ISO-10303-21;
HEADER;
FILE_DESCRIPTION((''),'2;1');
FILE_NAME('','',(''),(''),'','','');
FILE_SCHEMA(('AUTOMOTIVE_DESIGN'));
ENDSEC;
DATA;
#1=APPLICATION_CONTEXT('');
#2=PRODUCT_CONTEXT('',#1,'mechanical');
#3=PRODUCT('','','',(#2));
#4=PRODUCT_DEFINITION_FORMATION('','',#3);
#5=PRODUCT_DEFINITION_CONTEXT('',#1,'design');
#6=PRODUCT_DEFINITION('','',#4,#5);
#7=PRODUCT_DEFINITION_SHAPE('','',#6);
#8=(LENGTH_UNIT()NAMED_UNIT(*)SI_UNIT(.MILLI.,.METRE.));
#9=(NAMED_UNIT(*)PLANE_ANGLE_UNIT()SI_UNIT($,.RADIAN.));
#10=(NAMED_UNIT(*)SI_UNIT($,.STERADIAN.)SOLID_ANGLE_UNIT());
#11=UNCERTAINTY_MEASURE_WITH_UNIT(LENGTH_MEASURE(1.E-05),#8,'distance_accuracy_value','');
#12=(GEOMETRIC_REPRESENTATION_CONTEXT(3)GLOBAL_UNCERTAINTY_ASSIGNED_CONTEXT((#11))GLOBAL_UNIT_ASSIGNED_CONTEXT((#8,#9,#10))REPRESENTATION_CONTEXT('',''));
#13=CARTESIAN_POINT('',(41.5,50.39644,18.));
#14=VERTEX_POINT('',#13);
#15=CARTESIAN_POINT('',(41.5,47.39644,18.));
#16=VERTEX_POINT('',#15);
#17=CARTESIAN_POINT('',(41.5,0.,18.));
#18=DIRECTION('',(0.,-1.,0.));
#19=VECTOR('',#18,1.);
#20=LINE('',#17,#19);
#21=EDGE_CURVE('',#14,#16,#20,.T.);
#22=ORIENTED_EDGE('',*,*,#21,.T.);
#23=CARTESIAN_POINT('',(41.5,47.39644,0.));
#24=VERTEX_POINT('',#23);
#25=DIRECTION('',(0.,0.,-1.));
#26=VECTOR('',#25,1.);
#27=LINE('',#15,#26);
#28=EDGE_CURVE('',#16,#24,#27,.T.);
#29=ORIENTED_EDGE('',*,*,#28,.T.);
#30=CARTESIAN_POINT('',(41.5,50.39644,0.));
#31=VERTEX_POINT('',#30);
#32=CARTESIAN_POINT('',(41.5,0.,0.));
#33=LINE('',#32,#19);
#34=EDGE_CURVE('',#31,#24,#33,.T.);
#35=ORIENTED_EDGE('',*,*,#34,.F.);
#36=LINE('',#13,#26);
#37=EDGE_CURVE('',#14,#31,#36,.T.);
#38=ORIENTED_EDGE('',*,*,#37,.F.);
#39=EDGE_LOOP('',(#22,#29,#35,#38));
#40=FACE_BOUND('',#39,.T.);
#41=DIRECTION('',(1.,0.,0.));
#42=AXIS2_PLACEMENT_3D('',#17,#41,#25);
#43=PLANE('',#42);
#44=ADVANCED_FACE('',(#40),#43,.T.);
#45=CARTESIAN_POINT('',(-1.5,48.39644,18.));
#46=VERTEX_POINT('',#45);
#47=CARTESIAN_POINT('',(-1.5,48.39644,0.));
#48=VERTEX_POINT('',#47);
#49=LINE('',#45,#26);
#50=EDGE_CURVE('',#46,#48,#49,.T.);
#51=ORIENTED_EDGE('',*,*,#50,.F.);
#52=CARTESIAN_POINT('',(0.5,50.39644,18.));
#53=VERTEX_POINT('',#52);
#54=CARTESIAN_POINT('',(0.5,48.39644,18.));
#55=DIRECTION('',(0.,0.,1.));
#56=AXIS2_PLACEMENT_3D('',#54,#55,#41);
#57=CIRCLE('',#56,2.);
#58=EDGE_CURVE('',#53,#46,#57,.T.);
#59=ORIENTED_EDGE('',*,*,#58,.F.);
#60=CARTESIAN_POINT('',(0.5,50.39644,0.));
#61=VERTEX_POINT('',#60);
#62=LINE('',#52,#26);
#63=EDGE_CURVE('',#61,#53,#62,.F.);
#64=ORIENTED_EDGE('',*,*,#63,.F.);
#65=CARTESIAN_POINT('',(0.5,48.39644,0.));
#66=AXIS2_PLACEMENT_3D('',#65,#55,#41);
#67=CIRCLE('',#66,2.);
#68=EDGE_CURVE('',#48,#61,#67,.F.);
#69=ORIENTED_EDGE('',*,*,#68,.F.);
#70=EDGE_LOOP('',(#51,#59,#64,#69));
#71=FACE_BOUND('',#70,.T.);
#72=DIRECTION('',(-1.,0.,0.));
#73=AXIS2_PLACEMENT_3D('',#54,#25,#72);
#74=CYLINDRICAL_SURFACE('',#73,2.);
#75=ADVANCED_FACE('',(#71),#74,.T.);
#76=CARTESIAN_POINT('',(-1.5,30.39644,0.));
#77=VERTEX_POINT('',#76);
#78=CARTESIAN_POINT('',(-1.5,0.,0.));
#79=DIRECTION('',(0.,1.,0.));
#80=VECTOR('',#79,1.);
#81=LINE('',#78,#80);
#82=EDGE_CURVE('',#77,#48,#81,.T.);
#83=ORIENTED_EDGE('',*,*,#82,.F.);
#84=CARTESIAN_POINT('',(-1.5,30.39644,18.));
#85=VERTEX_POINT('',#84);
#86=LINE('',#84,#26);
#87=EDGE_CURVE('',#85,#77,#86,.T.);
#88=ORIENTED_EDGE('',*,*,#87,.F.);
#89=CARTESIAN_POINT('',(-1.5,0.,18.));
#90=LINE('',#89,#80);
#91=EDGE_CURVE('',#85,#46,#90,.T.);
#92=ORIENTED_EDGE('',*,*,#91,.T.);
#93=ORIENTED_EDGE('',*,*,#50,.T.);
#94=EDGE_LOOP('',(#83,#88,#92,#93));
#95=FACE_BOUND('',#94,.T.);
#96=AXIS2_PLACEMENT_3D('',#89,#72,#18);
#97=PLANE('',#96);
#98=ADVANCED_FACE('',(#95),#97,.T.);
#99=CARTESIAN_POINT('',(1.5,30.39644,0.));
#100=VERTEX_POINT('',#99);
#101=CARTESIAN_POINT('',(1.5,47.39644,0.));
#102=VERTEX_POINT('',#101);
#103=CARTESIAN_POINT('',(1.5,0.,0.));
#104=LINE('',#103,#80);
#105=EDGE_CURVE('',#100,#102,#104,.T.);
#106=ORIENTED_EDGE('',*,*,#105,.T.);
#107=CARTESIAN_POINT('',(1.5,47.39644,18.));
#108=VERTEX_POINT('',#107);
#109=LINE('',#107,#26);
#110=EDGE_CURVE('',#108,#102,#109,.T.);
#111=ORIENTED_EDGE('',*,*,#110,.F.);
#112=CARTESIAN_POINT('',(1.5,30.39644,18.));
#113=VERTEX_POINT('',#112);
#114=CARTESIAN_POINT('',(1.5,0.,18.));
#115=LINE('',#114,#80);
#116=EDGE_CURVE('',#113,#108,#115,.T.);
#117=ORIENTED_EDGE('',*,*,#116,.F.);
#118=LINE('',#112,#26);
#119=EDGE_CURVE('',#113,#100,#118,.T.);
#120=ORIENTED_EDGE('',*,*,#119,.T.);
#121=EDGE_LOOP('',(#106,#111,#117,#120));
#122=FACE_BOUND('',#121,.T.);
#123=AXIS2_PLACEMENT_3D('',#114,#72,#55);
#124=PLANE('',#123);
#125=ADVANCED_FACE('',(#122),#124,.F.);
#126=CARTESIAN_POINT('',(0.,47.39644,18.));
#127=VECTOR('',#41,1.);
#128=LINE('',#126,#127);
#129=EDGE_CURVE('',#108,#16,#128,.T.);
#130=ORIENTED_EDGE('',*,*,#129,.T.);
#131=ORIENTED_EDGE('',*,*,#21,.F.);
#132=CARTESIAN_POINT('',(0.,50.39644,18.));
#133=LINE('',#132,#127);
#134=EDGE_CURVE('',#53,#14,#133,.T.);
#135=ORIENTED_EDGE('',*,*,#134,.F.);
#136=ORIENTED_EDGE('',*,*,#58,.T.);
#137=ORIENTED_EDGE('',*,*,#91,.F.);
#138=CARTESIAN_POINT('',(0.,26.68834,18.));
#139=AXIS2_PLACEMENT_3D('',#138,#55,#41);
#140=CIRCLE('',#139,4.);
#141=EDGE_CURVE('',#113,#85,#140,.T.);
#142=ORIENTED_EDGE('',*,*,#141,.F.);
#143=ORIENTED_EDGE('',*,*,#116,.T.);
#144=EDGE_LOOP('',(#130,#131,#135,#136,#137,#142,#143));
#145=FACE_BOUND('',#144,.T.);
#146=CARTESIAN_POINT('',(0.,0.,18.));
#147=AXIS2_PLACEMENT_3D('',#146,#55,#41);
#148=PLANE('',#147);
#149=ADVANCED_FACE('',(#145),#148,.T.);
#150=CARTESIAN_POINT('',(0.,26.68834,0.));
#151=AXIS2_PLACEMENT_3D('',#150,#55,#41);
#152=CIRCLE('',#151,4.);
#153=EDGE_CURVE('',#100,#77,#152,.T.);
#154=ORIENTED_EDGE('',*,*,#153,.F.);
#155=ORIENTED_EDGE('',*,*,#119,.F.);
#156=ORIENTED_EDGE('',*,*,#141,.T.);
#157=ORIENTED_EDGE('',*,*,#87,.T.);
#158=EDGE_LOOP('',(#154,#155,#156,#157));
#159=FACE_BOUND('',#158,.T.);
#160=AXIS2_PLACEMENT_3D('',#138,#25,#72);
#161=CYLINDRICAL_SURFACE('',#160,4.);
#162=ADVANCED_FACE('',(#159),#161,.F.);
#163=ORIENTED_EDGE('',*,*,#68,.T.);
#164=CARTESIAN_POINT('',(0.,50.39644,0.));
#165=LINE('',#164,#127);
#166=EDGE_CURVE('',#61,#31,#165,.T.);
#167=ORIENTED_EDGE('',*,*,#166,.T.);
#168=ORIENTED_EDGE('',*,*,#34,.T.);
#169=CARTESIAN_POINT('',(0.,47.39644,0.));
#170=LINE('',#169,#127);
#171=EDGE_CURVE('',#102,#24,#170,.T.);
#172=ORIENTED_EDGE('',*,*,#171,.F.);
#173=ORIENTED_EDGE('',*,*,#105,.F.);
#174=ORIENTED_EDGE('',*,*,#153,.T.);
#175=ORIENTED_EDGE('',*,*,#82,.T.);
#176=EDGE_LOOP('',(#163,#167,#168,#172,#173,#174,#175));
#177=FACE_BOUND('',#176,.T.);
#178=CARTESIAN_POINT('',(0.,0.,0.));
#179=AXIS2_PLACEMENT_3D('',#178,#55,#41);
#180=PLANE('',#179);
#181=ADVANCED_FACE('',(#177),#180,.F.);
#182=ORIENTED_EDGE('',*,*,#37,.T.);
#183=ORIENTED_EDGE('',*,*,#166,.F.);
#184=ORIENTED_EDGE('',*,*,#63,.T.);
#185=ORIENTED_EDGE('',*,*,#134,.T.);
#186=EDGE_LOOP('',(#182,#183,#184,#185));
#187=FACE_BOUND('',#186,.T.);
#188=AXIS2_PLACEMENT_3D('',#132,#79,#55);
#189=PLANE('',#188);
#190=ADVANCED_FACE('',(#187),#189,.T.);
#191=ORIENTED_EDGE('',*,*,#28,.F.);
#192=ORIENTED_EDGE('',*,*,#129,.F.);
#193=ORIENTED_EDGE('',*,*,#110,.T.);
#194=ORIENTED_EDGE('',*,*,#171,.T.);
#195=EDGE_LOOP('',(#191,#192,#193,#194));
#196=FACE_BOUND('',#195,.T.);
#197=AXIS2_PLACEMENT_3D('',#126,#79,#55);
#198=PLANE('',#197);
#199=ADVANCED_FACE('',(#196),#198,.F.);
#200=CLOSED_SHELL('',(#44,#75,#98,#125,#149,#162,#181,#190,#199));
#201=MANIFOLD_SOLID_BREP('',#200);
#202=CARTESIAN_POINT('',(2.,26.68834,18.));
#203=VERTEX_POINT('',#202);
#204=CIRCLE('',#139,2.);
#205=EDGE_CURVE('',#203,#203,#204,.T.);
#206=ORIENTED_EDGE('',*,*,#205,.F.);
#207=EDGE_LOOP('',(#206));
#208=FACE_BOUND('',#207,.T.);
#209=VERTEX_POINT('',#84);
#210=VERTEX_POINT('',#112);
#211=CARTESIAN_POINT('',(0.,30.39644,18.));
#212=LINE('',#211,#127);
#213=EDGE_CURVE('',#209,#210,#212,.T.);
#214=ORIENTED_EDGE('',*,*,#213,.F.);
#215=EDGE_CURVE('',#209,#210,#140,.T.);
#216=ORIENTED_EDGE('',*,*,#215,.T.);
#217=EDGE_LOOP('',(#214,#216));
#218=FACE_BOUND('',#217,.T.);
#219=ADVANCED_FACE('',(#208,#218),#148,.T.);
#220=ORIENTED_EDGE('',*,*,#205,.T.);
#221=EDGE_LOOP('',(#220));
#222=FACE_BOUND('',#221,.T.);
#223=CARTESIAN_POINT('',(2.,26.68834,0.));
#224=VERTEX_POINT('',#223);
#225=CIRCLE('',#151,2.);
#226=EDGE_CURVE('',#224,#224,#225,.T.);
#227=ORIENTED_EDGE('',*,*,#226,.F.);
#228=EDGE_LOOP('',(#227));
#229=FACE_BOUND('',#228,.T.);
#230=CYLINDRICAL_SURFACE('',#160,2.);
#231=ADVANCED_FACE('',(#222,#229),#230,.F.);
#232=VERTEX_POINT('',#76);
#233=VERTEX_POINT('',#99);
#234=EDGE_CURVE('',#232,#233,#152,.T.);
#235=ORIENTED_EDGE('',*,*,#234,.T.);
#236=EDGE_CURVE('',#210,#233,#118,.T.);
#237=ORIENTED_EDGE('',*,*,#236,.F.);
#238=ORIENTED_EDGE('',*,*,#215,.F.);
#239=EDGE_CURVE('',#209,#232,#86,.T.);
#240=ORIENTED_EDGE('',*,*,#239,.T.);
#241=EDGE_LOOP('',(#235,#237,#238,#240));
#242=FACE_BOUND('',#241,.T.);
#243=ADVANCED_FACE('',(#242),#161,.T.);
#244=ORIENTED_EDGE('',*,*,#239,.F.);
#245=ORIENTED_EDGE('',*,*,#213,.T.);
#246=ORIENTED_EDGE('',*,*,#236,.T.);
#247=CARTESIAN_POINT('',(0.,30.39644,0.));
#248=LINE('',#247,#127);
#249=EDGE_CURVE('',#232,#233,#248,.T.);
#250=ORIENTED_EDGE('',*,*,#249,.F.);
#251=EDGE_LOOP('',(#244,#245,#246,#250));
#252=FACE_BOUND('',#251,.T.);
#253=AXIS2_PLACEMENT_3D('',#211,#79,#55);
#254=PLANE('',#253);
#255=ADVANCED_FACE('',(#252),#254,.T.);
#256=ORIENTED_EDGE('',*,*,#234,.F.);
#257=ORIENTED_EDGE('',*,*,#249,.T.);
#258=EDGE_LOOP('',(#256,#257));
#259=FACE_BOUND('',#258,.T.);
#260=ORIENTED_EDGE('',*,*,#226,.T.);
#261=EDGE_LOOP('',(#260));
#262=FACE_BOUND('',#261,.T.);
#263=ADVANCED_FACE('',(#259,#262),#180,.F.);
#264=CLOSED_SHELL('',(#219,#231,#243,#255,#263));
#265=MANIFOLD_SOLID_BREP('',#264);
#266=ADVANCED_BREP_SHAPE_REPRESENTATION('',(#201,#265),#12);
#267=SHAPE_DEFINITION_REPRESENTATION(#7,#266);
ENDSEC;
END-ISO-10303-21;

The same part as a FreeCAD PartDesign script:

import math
import FreeCAD as App
import Part
import Sketcher


def edges_at(feature, points):
    """Names of the edges that pass closest to the given points."""
    edges = feature.Shape.Edges
    near = lambda p: min(range(len(edges)), key=lambda i: edges[i].distToShape(Part.Vertex(*p))[0])
    return sorted({f"Edge{near(p) + 1}" for p in points})

doc = App.newDocument("Part")
body = doc.addObject("PartDesign::Body", "Body")

sketch1 = body.newObject("Sketcher::SketchObject", "Sketch")
sketch1.AttachmentSupport = (doc.getObject("XY_Plane"), [""])
sketch1.MapMode = "FlatFace"
sketch1.addGeometry(Part.LineSegment(App.Vector(-1.5, 50.4, 0), App.Vector(-1.5, 30.4, 0)), False)
sketch1.addGeometry(Part.ArcOfCircle(Part.Circle(App.Vector(0, 26.7, 0), App.Vector(0, 0, 1), 4), math.radians(68), math.radians(112)), False)
sketch1.addGeometry(Part.LineSegment(App.Vector(1.5, 30.4, 0), App.Vector(1.5, 47.4, 0)), False)
sketch1.addGeometry(Part.LineSegment(App.Vector(1.5, 47.4, 0), App.Vector(41.5, 47.4, 0)), False)
sketch1.addGeometry(Part.LineSegment(App.Vector(41.5, 47.4, 0), App.Vector(41.5, 50.4, 0)), False)
sketch1.addGeometry(Part.LineSegment(App.Vector(41.5, 50.4, 0), App.Vector(-1.5, 50.4, 0)), False)
sketch1.addConstraint(Sketcher.Constraint("Coincident", 0, 2, 1, 2))
sketch1.addConstraint(Sketcher.Constraint("Coincident", 1, 1, 2, 1))
sketch1.addConstraint(Sketcher.Constraint("Coincident", 2, 2, 3, 1))
sketch1.addConstraint(Sketcher.Constraint("Coincident", 3, 2, 4, 1))
sketch1.addConstraint(Sketcher.Constraint("Coincident", 4, 2, 5, 1))
sketch1.addConstraint(Sketcher.Constraint("Coincident", 5, 2, 0, 1))
sketch1.addConstraint(Sketcher.Constraint("Vertical", 0))
sketch1.addConstraint(Sketcher.Constraint("Vertical", 2))
sketch1.addConstraint(Sketcher.Constraint("Horizontal", 3))
sketch1.addConstraint(Sketcher.Constraint("Vertical", 4))
sketch1.addConstraint(Sketcher.Constraint("Horizontal", 5))
sketch1.addConstraint(Sketcher.Constraint("Symmetric", 0, 2, 1, 1, -2))
sketch1.addConstraint(Sketcher.Constraint("Radius", 1, 4.0))
sketch1.addConstraint(Sketcher.Constraint("DistanceX", 3, 1, 3, 2, 40.0))
sketch1.addConstraint(Sketcher.Constraint("DistanceX", 5, 2, 5, 1, 43.0))
sketch1.addConstraint(Sketcher.Constraint("DistanceY", 0, 2, 0, 1, 20.0))
sketch1.addConstraint(Sketcher.Constraint("DistanceY", 2, 1, 2, 2, 17.0))
sketch1.addConstraint(Sketcher.Constraint("DistanceY", -1, 1, 1, 3, 26.688341))
pad1 = body.newObject("PartDesign::Pad", "Pad")
pad1.Profile = sketch1
pad1.Length = 18
doc.recompute()

fillet = body.newObject("PartDesign::Fillet", "Fillet")
fillet.Base = (pad1, edges_at(pad1, [(-1.5, 50.396, 9)]))
fillet.Radius = 2
body2 = doc.addObject("PartDesign::Body", "Body001")

sketch2 = body2.newObject("Sketcher::SketchObject", "Sketch001")
sketch2.AttachmentSupport = (doc.getObject("XY_Plane001"), [""])
sketch2.MapMode = "FlatFace"
sketch2.addGeometry(Part.LineSegment(App.Vector(1.5, 30.4, 0), App.Vector(-1.5, 30.4, 0)), False)
sketch2.addGeometry(Part.ArcOfCircle(Part.Circle(App.Vector(0, 26.7, 0), App.Vector(0, 0, 1), 4), math.radians(112), math.radians(360)), False)
sketch2.addGeometry(Part.ArcOfCircle(Part.Circle(App.Vector(0, 26.7, 0), App.Vector(0, 0, 1), 4), math.radians(0), math.radians(68)), False)
sketch2.addGeometry(Part.Circle(App.Vector(0, 26.7, 0), App.Vector(0, 0, 1), 2), False)
sketch2.addConstraint(Sketcher.Constraint("Coincident", 0, 2, 1, 1))
sketch2.addConstraint(Sketcher.Constraint("Tangent", 1, 2, 2, 1))
sketch2.addConstraint(Sketcher.Constraint("Coincident", 2, 2, 0, 1))
sketch2.addConstraint(Sketcher.Constraint("Horizontal", 0))
sketch2.addConstraint(Sketcher.Constraint("Coincident", 3, 3, 1, 3))
sketch2.addConstraint(Sketcher.Constraint("Equal", 1, 2))
sketch2.addConstraint(Sketcher.Constraint("PointOnObject", 1, 3, -2))
sketch2.addConstraint(Sketcher.Constraint("Horizontal", 3, 3, 1, 2))
sketch2.addConstraint(Sketcher.Constraint("Diameter", 3, 4.0))
sketch2.addConstraint(Sketcher.Constraint("Radius", 1, 4.0))
sketch2.addConstraint(Sketcher.Constraint("DistanceX", 0, 2, 0, 1, 3.0))
sketch2.addConstraint(Sketcher.Constraint("DistanceY", -1, 1, 1, 3, 26.68834))
pad2 = body2.newObject("PartDesign::Pad", "Pad001")
pad2.Profile = sketch2
pad2.Length = 18

doc.recompute()
